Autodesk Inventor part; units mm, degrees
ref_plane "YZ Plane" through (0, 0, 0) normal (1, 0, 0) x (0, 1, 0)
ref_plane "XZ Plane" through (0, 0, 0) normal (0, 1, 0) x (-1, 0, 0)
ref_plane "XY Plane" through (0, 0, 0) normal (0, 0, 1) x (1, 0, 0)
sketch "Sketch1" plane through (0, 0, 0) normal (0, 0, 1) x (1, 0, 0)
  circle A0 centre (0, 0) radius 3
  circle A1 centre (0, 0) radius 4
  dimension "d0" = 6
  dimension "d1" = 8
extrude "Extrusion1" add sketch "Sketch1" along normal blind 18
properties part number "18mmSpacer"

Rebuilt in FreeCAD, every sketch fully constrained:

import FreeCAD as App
import Part
import Sketcher
Q = App.Units.Quantity

doc = App.newDocument("Part")
body = doc.addObject("PartDesign::Body", "Body")

# Sketch on XY plane
sketch1 = body.newObject("Sketcher::SketchObject", "Sketch")
sketch1.AttachmentSupport = (doc.getObject("XY_Plane"), [""])
sketch1.MapMode = "FlatFace"
sketch1.addGeometry([
    Part.Circle(App.Vector(0, 0, 0), App.Vector(0, 0, 1), 4),
    Part.Circle(App.Vector(0, 0, 0), App.Vector(0, 0, 1), 3),
], False)
sketch1.addConstraint([
    Sketcher.Constraint("Coincident", 0, 3, -1, 1),
    Sketcher.Constraint("Coincident", 1, 3, -1, 1),
    Sketcher.Constraint("Diameter", 0, Q("8 mm")),
    Sketcher.Constraint("Diameter", 1, Q("6 mm")),
])
pad1 = body.newObject("PartDesign::Pad", "Pad")
pad1.Profile = sketch1
pad1.Length = 18

doc.recompute()
